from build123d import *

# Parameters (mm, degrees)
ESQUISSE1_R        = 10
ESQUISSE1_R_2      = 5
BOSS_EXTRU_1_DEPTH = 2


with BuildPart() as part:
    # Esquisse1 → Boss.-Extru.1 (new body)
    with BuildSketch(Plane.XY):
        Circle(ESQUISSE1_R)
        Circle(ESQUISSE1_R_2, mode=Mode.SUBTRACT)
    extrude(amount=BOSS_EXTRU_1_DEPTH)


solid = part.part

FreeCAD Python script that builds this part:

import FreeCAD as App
import Part
import Sketcher

V = App.Vector

doc = App.newDocument("Part")
body = doc.addObject("PartDesign::Body", "Body")

sketch1 = body.newObject("Sketcher::SketchObject", "Sketch")
sketch1.AttachmentSupport = (doc.getObject("XY_Plane"), [""])
sketch1.MapMode = "FlatFace"
sketch1.addGeometry(Part.Circle(V(0, 0, 0), V(0, 0, 1), 10), False)
sketch1.addGeometry(Part.Circle(V(0, 0, 0), V(0, 0, 1), 5), False)
sketch1.addConstraint(Sketcher.Constraint("Coincident", 0, 3, -1, 1))
sketch1.addConstraint(Sketcher.Constraint("Coincident", 1, 3, -1, 1))
sketch1.addConstraint(Sketcher.Constraint("Diameter", 0, 20.0))
sketch1.addConstraint(Sketcher.Constraint("Diameter", 1, 10.0))
pad1 = body.newObject("PartDesign::Pad", "Pad")
pad1.Profile = sketch1
pad1.Length = 2

doc.recompute()
